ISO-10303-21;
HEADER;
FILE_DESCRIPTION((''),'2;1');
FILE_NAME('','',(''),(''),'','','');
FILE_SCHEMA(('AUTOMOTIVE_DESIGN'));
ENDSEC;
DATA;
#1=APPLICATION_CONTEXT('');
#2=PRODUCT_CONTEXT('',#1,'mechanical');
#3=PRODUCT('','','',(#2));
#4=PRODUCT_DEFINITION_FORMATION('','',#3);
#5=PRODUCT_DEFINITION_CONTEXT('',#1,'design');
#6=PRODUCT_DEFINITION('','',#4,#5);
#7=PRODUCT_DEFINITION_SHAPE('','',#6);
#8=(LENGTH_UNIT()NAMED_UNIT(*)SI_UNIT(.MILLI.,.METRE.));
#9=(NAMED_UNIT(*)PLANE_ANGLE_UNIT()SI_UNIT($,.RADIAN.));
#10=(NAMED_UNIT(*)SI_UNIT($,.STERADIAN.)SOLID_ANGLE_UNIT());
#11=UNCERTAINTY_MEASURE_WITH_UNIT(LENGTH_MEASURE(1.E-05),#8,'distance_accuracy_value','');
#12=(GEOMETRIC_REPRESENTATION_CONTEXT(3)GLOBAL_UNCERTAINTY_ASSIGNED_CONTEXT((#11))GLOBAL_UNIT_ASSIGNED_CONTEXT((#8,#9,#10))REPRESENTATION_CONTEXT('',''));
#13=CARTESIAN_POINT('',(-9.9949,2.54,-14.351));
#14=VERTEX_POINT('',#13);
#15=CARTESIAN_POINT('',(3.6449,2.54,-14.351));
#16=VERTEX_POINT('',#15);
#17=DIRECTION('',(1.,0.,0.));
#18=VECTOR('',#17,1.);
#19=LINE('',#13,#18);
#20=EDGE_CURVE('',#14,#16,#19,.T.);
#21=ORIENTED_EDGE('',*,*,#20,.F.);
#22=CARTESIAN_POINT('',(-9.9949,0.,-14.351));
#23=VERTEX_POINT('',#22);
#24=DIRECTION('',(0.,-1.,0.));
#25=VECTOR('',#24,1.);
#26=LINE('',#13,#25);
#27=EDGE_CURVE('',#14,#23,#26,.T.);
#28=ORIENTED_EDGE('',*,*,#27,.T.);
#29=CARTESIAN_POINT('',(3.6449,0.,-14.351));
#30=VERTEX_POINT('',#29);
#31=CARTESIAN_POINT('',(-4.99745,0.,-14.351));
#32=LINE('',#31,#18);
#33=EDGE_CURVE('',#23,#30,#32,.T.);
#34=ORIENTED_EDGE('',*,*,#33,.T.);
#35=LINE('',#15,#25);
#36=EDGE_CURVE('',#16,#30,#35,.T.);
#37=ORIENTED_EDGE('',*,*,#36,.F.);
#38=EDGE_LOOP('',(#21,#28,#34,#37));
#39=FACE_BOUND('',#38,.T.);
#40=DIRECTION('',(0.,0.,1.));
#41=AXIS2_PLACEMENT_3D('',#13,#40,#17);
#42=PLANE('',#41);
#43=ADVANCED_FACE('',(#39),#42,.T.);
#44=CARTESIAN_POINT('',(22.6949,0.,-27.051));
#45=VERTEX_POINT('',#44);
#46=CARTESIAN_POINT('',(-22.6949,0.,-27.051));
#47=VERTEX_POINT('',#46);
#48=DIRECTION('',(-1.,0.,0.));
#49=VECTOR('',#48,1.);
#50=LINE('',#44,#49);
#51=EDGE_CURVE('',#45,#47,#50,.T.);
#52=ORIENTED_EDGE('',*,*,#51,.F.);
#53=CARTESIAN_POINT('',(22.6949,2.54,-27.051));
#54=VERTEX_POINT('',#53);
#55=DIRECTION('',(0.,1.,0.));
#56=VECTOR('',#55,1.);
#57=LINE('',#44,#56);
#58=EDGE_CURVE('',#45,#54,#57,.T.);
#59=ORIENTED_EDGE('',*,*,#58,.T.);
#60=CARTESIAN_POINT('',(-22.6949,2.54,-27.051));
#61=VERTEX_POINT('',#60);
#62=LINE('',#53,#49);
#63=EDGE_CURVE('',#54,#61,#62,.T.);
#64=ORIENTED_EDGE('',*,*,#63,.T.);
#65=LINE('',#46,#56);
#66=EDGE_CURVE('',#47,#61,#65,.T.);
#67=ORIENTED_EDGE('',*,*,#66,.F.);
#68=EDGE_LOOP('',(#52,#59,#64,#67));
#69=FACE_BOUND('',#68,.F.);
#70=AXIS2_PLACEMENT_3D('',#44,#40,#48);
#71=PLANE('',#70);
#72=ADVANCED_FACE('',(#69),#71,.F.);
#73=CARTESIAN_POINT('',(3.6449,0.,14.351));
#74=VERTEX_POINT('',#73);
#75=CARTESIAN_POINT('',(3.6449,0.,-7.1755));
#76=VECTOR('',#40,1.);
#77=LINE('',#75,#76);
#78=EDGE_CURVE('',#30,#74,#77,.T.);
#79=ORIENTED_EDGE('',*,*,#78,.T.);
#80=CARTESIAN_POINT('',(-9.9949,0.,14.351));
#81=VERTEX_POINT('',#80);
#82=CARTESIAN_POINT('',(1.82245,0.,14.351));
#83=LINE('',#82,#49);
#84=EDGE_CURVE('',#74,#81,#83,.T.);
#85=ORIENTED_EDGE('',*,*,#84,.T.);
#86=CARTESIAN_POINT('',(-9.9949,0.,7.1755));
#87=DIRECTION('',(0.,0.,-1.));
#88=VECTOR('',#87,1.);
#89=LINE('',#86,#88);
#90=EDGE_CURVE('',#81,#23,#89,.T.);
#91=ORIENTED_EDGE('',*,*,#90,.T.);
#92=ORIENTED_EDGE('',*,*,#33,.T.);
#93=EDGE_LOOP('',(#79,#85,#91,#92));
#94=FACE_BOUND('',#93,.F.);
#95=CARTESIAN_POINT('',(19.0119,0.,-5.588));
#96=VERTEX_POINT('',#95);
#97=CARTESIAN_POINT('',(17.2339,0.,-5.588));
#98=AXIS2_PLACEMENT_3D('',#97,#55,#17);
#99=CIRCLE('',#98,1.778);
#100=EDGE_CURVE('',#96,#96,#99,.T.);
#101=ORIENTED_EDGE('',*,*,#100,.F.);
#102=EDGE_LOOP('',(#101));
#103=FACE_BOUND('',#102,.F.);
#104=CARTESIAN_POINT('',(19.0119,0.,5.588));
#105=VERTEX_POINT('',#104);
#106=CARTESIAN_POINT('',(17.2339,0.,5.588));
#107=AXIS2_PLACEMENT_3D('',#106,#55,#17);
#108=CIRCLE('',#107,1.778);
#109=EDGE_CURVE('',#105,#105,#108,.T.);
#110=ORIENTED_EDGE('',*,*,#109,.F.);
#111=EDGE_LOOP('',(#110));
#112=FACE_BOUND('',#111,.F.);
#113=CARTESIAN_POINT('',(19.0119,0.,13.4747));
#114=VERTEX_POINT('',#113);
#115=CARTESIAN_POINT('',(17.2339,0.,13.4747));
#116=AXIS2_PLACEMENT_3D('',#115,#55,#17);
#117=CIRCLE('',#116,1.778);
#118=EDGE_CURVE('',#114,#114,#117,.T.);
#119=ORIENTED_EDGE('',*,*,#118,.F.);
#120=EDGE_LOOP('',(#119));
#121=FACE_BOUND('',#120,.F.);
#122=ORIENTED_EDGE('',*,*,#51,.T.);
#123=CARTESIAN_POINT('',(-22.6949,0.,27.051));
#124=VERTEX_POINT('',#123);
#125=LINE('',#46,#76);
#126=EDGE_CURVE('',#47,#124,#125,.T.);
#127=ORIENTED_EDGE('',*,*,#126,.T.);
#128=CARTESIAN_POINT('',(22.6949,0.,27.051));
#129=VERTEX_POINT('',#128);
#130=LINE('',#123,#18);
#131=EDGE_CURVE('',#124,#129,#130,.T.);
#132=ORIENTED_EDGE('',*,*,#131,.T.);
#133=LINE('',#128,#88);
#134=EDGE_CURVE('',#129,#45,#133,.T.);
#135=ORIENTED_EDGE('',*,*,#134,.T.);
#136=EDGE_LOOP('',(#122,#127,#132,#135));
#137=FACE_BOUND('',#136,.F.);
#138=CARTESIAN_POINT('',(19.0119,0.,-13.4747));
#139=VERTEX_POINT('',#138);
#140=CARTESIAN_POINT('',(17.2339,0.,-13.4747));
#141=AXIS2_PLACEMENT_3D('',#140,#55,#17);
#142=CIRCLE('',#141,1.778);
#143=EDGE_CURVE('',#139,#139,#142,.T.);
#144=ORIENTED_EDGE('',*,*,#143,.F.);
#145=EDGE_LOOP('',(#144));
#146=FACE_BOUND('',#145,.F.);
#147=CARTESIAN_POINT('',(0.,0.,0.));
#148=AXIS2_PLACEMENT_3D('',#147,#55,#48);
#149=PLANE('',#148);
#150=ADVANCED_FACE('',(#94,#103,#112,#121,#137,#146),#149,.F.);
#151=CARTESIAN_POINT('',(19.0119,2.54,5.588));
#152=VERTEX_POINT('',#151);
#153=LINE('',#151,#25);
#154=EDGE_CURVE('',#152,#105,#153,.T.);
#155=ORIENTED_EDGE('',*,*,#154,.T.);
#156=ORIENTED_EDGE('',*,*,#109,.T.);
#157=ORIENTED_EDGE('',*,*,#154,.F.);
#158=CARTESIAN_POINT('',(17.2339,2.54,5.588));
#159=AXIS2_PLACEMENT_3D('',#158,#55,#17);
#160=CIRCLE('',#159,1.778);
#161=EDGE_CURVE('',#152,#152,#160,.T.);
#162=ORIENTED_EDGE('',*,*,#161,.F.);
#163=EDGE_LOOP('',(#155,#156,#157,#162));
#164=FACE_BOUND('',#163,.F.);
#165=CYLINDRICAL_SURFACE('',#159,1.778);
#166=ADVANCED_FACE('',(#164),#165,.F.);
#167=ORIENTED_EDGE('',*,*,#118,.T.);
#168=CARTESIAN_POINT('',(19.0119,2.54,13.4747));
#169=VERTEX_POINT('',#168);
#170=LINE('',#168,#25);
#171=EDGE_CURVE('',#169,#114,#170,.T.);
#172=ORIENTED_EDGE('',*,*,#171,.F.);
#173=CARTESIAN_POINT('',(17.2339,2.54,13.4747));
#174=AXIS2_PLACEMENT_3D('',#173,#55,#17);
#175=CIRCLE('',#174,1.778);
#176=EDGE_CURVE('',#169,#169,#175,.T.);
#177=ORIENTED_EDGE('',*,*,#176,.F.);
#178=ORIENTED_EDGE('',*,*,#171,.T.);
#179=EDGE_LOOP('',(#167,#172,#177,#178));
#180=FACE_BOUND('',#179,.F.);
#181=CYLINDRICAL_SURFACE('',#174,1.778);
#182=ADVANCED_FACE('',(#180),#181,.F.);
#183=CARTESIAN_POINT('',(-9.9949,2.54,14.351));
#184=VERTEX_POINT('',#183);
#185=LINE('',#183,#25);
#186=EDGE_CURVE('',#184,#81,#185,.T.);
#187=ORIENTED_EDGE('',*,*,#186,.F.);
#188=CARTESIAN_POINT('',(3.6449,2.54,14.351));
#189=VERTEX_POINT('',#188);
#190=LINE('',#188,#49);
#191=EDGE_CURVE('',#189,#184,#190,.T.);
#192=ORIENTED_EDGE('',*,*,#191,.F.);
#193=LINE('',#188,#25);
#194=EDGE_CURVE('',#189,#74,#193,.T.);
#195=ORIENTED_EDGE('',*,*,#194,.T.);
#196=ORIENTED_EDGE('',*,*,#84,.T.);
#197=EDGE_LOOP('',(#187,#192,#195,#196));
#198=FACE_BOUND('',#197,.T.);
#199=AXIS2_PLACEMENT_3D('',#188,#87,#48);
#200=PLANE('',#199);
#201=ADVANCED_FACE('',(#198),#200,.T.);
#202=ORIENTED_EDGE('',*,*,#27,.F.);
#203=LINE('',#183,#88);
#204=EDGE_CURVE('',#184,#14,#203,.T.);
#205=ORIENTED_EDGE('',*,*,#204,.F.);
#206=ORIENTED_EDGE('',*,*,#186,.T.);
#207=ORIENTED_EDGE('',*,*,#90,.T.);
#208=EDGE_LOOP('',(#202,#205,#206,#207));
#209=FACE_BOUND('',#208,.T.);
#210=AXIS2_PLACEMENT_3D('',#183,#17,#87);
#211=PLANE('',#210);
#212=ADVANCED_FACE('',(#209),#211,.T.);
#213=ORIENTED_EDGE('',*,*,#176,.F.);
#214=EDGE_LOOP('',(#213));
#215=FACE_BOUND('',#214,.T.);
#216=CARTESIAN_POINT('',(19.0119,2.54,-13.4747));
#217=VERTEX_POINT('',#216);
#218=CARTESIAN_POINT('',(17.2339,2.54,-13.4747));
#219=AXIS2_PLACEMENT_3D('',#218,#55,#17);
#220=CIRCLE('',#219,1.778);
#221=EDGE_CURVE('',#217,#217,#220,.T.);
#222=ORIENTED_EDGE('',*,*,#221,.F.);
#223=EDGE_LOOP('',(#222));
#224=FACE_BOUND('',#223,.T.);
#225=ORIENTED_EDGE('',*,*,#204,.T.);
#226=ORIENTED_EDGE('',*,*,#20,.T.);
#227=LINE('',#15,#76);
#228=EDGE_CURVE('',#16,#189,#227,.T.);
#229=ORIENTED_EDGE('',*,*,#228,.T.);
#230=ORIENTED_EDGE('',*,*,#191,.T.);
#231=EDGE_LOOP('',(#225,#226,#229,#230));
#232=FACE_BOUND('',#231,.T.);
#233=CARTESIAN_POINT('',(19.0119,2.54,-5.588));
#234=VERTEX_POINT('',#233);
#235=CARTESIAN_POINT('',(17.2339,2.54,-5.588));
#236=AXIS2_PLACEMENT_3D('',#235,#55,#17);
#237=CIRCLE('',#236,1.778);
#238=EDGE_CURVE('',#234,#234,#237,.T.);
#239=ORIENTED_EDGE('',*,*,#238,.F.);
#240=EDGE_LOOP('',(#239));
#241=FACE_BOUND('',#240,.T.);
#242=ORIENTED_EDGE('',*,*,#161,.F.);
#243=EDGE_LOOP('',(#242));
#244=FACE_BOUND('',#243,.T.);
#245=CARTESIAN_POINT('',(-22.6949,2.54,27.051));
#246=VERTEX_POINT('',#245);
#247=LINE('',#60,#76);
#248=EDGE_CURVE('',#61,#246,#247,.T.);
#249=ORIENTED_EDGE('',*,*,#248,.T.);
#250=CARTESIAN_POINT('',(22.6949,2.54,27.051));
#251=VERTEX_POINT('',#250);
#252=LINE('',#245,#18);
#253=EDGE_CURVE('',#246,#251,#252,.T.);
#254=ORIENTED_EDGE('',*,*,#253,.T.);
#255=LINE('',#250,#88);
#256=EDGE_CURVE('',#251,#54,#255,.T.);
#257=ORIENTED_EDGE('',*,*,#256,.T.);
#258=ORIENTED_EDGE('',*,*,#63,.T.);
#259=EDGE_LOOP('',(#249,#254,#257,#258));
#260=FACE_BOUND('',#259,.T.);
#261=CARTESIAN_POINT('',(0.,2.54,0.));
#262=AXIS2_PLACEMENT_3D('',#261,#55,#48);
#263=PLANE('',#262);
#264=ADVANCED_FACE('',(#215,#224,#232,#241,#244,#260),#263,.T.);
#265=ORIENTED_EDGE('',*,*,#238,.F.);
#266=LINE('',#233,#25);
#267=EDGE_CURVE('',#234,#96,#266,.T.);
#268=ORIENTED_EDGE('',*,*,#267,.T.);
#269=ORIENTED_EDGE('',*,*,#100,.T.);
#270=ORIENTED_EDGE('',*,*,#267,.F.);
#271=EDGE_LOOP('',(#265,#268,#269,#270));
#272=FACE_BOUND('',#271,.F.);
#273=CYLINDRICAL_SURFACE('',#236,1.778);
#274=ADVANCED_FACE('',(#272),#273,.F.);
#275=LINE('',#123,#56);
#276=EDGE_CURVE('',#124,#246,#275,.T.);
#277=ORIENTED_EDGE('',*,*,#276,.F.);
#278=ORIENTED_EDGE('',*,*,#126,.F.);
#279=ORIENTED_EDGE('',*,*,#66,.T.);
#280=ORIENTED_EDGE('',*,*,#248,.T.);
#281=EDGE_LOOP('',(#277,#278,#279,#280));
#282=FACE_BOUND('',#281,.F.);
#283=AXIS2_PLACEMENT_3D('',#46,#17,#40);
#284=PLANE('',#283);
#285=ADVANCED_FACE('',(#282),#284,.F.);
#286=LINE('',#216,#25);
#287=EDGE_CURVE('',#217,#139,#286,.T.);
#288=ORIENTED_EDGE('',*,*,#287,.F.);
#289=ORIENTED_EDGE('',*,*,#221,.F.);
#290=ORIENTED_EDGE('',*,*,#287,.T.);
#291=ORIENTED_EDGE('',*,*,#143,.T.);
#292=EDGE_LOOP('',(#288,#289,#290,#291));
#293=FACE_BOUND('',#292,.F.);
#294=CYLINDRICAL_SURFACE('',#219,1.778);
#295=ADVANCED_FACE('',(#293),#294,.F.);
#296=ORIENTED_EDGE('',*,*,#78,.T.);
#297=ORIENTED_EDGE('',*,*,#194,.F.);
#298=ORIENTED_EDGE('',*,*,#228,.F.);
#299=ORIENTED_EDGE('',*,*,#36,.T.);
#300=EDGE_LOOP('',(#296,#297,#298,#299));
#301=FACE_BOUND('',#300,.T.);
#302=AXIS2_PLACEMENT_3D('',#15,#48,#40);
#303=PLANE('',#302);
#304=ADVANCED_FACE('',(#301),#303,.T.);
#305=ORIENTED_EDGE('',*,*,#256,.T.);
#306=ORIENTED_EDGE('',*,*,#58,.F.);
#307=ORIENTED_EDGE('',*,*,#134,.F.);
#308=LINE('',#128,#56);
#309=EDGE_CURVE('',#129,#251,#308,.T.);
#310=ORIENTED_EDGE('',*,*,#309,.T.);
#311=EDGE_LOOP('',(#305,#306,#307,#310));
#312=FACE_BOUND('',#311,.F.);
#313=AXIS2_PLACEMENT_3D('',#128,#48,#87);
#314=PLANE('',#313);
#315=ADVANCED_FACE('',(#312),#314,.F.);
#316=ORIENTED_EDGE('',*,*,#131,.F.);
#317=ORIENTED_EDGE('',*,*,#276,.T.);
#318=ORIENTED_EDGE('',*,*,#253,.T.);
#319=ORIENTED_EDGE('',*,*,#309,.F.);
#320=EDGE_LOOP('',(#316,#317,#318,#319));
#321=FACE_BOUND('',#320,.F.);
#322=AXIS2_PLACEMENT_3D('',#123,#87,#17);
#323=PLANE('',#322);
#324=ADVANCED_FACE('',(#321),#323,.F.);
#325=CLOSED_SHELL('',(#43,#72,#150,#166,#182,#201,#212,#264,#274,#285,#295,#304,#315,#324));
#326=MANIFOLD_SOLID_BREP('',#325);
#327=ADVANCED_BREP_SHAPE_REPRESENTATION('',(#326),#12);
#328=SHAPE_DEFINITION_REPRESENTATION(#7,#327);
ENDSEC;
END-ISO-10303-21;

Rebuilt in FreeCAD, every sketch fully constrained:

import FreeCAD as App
import Part
import Sketcher
Q = App.Units.Quantity


def add_polygon(sketch, points):
    """Adds a closed chain of lines whose ends are joined by coincident constraints."""
    first, n = sketch.GeometryCount, len(points)
    for a, b in zip(points, points[1:] + points[:1]):
        sketch.addGeometry(Part.LineSegment(App.Vector(*a, 0), App.Vector(*b, 0)), False)
    for i in range(n):
        sketch.addConstraint(Sketcher.Constraint("Coincident", first + i, 2, first + (i + 1) % n, 1))

doc = App.newDocument("Part")
body = doc.addObject("PartDesign::Body", "Body")

sketch1 = doc.addObject("Sketcher::SketchObject", "Sketch")
body.addObject(sketch1)
sketch1.AttachmentSupport = (doc.XZ_Plane, [""])
sketch1.MapMode = "FlatFace"
add_polygon(sketch1, [(23, 27), (23, -27), (-23, -27), (-23, 27)])
sketch1.addConstraint([
    Sketcher.Constraint("Vertical", 0),
    Sketcher.Constraint("Horizontal", 1),
    Sketcher.Constraint("Vertical", 2),
    Sketcher.Constraint("Horizontal", 3),
    Sketcher.Constraint("Symmetric", 0, 2, 2, 2, -1, 1),
    Sketcher.Constraint("DistanceY", 0, 2, 0, 1, Q("2.13 in")),
    Sketcher.Constraint("DistanceX", 1, 2, 1, 1, Q("1.787 in")),
])
pad1 = doc.addObject("PartDesign::Pad", "Pad")
body.addObject(pad1)
pad1.Profile = sketch1
pad1.Length = Q("0.1 in")
pad1.Reversed = True

sketch2 = doc.addObject("Sketcher::SketchObject", "Sketch001")
body.addObject(sketch2)
sketch2.AttachmentSupport = (doc.XZ_Plane, [""])
sketch2.MapMode = "FlatFace"
sketch2.AttachmentOffset = App.Placement(App.Vector(0, 0, -0.1 * 25.4), App.Rotation())
add_polygon(sketch2, [(4, -14), (-10, -14), (-10, 14), (4, 14)])
sketch2.addConstraint([
    Sketcher.Constraint("Horizontal", 0),
    Sketcher.Constraint("Vertical", 1),
    Sketcher.Constraint("Horizontal", 2),
    Sketcher.Constraint("Vertical", 3),
    Sketcher.Constraint("DistanceY", 1, 1, 1, 2, Q("1.13 in")),
    Sketcher.Constraint("DistanceX", 0, 2, 0, 1, Q("0.537 in")),
    Sketcher.Constraint("DistanceY", 0, 2, -1, 1, Q("0.565 in")),
    Sketcher.Constraint("DistanceX", 0, 2, -1, 1, Q("0.3935 in")),
])
pocket1 = doc.addObject("PartDesign::Pocket", "Pocket")
body.addObject(pocket1)
pocket1.Profile = sketch2
pocket1.Type = "ThroughAll"
pocket1.Reversed = True

sketch3 = doc.addObject("Sketcher::SketchObject", "Sketch002")
body.addObject(sketch3)
sketch3.AttachmentSupport = (doc.XZ_Plane, [""])
sketch3.MapMode = "FlatFace"
sketch3.AttachmentOffset = App.Placement(App.Vector(0, 0, -0.1 * 25.4), App.Rotation())
sketch3.addGeometry([
    Part.Circle(App.Vector(17.2, 5.6, 0), App.Vector(0, 0, 1), 1.8),
    Part.Circle(App.Vector(17.2, -5.6, 0), App.Vector(0, 0, 1), 1.8),
    Part.Circle(App.Vector(17.2, -13.5, 0), App.Vector(0, 0, 1), 1.8),
    Part.Circle(App.Vector(17.2, 13.5, 0), App.Vector(0, 0, 1), 1.8),
], False)
sketch3.addConstraint([
    Sketcher.Constraint("Equal", 0, 1),
    Sketcher.Constraint("Equal", 1, 2),
    Sketcher.Constraint("Equal", 2, 3),
    Sketcher.Constraint("Symmetric", 0, 3, 1, 3, -1),
    Sketcher.Constraint("Symmetric", 2, 3, 3, 3, -1),
    Sketcher.Constraint("Vertical", 1, 3, 2, 3),
    Sketcher.Constraint("Diameter", 0, Q("0.14 in")),
    Sketcher.Constraint("DistanceY", 2, 3, 3, 3, Q("1.061 in")),
    Sketcher.Constraint("DistanceY", -1, 1, 0, 3, Q("0.22 in")),
    Sketcher.Constraint("DistanceX", -1, 1, 0, 3, Q("0.6785 in")),
])
pocket2 = doc.addObject("PartDesign::Pocket", "Pocket001")
body.addObject(pocket2)
pocket2.Profile = sketch3
pocket2.Type = "ThroughAll"
pocket2.Reversed = True

doc.recompute()
